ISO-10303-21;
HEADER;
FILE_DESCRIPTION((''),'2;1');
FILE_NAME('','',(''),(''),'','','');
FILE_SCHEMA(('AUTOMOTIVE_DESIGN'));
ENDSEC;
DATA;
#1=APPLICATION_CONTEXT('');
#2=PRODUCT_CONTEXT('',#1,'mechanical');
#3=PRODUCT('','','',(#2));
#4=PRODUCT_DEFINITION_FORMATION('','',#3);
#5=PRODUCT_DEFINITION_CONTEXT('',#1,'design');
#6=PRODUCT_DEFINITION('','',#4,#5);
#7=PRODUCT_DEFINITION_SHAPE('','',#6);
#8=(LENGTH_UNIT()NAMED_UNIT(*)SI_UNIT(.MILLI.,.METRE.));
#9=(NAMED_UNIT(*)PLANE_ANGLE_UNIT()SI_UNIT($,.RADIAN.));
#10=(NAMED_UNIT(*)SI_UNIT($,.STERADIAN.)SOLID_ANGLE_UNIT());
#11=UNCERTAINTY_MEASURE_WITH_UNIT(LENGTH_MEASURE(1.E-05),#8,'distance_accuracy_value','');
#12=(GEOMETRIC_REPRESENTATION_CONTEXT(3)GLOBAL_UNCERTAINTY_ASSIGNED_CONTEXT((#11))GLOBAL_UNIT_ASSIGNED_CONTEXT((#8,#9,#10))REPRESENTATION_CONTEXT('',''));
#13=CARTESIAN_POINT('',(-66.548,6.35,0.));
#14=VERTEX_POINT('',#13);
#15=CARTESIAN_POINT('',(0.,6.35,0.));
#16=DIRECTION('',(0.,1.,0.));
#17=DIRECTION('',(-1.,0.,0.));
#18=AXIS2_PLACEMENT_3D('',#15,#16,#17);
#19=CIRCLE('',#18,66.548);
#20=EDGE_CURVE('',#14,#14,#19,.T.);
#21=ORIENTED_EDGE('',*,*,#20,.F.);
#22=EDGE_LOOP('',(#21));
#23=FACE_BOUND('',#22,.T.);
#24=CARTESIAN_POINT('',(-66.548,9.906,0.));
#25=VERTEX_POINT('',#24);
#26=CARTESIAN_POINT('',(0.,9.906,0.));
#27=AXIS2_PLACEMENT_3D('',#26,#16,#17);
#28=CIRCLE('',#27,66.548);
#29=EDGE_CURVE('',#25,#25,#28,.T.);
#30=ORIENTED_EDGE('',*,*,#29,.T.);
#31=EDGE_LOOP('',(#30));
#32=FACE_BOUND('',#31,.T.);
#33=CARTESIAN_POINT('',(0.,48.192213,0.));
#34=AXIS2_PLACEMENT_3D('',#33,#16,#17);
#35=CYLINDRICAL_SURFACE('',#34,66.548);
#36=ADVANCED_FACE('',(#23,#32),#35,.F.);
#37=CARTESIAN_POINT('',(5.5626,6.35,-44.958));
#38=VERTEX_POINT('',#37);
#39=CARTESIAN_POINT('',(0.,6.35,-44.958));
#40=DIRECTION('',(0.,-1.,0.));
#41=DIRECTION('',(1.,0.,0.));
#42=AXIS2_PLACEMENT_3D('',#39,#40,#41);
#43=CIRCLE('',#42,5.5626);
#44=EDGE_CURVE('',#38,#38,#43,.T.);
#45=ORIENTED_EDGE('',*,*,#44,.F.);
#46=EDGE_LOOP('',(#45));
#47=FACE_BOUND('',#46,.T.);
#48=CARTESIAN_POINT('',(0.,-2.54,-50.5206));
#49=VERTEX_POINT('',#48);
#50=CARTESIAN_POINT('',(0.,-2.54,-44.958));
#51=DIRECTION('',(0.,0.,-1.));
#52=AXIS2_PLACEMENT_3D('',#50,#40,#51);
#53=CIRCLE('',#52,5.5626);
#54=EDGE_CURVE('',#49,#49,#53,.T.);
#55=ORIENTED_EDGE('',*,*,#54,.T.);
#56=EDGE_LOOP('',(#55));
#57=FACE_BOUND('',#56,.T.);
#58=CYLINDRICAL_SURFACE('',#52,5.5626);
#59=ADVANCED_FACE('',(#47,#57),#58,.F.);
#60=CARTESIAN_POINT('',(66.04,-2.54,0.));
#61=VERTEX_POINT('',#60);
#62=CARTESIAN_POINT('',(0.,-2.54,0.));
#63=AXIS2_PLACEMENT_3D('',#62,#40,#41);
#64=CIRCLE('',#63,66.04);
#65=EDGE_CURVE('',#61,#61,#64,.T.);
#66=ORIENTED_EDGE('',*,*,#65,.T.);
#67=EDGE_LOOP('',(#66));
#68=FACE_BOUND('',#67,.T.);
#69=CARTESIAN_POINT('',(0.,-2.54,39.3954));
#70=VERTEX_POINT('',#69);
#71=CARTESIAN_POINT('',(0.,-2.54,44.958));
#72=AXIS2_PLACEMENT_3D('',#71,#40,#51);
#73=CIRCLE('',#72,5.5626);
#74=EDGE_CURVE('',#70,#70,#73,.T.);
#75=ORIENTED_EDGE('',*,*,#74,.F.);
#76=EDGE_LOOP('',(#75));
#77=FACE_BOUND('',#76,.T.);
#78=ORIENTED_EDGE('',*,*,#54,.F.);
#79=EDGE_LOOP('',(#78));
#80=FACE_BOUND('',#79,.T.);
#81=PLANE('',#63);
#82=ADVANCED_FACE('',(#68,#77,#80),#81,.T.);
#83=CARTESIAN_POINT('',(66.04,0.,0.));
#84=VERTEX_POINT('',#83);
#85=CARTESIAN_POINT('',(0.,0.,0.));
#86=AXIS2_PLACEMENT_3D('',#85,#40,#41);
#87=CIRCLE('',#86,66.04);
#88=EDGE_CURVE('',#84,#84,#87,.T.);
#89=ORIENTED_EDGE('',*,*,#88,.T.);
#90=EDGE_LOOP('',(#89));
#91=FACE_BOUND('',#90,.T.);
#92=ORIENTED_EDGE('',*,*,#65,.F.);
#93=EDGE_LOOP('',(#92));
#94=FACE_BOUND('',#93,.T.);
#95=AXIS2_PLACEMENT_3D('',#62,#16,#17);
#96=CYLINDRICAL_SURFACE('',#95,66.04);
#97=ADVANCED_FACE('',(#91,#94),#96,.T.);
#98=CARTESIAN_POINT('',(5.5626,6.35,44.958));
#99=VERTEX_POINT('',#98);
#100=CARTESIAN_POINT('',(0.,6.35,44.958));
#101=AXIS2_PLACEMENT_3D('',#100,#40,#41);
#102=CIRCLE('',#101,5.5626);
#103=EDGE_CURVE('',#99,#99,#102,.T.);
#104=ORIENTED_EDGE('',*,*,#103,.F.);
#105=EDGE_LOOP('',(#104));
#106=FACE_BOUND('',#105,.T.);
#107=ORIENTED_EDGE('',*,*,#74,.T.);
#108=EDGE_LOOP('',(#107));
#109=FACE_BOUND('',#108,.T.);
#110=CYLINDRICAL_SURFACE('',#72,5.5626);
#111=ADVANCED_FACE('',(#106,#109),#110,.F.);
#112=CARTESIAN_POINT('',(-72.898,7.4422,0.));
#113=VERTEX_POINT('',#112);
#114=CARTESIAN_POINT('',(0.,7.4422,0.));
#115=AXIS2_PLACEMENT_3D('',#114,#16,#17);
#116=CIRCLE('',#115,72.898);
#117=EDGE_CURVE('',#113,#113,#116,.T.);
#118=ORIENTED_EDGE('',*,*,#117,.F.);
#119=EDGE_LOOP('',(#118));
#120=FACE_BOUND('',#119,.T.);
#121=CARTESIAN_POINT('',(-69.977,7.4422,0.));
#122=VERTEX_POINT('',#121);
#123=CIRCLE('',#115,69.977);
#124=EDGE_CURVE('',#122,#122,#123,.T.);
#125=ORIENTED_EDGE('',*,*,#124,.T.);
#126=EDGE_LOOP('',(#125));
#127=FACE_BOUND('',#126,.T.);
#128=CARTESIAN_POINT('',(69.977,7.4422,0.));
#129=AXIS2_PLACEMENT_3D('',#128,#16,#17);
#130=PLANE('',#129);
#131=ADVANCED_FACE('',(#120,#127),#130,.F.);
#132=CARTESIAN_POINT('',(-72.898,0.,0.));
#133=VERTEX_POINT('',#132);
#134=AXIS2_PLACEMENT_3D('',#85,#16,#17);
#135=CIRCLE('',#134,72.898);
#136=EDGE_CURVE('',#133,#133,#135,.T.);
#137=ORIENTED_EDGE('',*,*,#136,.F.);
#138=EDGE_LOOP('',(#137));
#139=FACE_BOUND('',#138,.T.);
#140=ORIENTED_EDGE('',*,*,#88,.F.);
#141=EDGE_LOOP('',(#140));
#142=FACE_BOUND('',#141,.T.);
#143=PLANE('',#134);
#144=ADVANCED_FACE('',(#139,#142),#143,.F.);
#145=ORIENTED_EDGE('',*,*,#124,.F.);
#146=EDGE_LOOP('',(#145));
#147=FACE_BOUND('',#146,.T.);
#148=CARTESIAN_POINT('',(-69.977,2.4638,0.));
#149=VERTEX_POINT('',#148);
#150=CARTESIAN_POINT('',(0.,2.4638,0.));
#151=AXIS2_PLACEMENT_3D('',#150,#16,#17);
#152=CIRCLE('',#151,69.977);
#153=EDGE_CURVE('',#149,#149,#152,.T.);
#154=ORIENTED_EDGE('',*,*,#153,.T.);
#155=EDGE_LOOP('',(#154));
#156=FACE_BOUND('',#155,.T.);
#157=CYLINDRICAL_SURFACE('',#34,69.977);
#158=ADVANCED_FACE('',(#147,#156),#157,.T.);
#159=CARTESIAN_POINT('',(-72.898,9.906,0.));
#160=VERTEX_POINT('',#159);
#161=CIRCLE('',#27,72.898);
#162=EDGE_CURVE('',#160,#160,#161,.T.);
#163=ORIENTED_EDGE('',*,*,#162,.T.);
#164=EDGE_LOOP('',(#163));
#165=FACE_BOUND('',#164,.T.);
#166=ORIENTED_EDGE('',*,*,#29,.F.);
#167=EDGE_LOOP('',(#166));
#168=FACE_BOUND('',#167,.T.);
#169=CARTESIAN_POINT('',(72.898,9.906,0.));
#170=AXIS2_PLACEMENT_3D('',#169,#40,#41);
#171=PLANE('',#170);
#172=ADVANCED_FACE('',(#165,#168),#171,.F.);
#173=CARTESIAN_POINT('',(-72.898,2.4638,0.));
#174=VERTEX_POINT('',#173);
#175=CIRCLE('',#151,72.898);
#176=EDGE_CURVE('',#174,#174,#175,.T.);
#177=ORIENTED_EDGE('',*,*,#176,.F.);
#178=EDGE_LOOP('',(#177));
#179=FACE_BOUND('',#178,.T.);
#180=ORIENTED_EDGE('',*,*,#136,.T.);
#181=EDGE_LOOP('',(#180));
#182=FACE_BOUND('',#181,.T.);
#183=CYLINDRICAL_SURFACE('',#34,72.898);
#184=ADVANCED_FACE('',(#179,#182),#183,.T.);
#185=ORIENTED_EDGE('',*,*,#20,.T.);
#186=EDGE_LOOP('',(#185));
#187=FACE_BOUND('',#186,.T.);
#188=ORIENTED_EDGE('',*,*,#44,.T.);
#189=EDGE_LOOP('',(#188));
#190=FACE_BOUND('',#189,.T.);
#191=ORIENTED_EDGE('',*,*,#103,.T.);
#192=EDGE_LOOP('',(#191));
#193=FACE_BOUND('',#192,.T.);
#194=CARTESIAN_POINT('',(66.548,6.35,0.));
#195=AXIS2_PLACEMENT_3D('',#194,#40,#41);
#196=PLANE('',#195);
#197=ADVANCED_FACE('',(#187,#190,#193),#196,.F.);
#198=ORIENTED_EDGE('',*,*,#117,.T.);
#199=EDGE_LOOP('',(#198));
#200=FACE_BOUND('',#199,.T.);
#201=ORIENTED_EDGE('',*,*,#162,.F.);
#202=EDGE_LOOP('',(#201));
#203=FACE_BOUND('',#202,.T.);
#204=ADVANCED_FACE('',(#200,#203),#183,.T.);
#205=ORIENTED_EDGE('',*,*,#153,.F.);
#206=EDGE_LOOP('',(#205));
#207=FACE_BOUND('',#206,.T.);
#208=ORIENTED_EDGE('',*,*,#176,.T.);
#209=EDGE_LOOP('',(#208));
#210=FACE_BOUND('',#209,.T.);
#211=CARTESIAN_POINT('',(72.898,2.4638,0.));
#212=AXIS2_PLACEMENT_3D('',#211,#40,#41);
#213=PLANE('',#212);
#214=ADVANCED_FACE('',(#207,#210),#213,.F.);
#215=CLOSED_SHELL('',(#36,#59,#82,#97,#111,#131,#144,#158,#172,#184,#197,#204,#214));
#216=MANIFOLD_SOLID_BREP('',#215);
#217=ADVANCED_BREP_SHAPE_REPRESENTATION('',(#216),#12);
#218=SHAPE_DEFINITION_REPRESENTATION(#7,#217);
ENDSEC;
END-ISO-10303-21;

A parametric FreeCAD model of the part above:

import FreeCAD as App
import Part
import Sketcher
Q = App.Units.Quantity

doc = App.newDocument("Part")
body = doc.addObject("PartDesign::Body", "Body")

sketch1 = doc.addObject("Sketcher::SketchObject", "Sketch")
body.addObject(sketch1)
sketch1.AttachmentSupport = (doc.XY_Plane, [""])
sketch1.MapMode = "FlatFace"
sketch1.addGeometry([
    Part.LineSegment(App.Vector(0, 0, 0), App.Vector(72.9, 0, 0)),
    Part.LineSegment(App.Vector(72.9, 0, 0), App.Vector(72.9, 2.5, 0)),
    Part.LineSegment(App.Vector(72.9, 2.5, 0), App.Vector(70, 2.5, 0)),
    Part.LineSegment(App.Vector(70, 2.5, 0), App.Vector(70, 7.4, 0)),
    Part.LineSegment(App.Vector(70, 7.4, 0), App.Vector(72.9, 7.4, 0)),
    Part.LineSegment(App.Vector(72.9, 7.4, 0), App.Vector(72.9, 9.9, 0)),
    Part.LineSegment(App.Vector(72.9, 9.9, 0), App.Vector(66.5, 9.9, 0)),
    Part.LineSegment(App.Vector(66.5, 9.9, 0), App.Vector(66.5, 6.3, 0)),
    Part.LineSegment(App.Vector(66.5, 6.3, 0), App.Vector(0, 6.3, 0)),
    Part.LineSegment(App.Vector(0, 6.3, 0), App.Vector(0, 0, 0)),
], False)
sketch1.addConstraint([
    Sketcher.Constraint("Coincident", 0, 2, 1, 1),
    Sketcher.Constraint("Coincident", 1, 2, 2, 1),
    Sketcher.Constraint("Coincident", 2, 2, 3, 1),
    Sketcher.Constraint("Coincident", 3, 2, 4, 1),
    Sketcher.Constraint("Coincident", 4, 2, 5, 1),
    Sketcher.Constraint("Coincident", 5, 2, 6, 1),
    Sketcher.Constraint("Coincident", 6, 2, 7, 1),
    Sketcher.Constraint("Coincident", 7, 2, 8, 1),
    Sketcher.Constraint("Coincident", 8, 2, 9, 1),
    Sketcher.Constraint("Coincident", 9, 2, 0, 1),
    Sketcher.Constraint("Horizontal", 0),
    Sketcher.Constraint("Vertical", 1),
    Sketcher.Constraint("Horizontal", 2),
    Sketcher.Constraint("Vertical", 3),
    Sketcher.Constraint("Horizontal", 4),
    Sketcher.Constraint("Vertical", 5),
    Sketcher.Constraint("Horizontal", 6),
    Sketcher.Constraint("Vertical", 7),
    Sketcher.Constraint("Horizontal", 8),
    Sketcher.Constraint("Vertical", 9),
    Sketcher.Constraint("Coincident", 9, 2, -1, 1),
    Sketcher.Constraint("Vertical", 1, 2, 4, 2),
    Sketcher.Constraint("Equal", 1, 5),
    Sketcher.Constraint("Equal", 6, 9),
    Sketcher.Constraint("DistanceX", 0, 1, 0, 2, Q("2.87 in")),
    Sketcher.Constraint("DistanceX", 6, 2, 6, 1, Q("0.25 in")),
    Sketcher.Constraint("DistanceY", 7, 2, 7, 1, Q("0.14 in")),
    Sketcher.Constraint("DistanceX", 2, 2, 2, 1, Q("0.115 in")),
    Sketcher.Constraint("DistanceY", 1, 1, 1, 2, Q("0.097 in")),
])
revolution = doc.addObject("PartDesign::Revolution", "Revolution")
body.addObject(revolution)
revolution.Profile = sketch1
revolution.ReferenceAxis = (sketch1, ["V_Axis"])
revolution.Angle = 360

sketch2 = doc.addObject("Sketcher::SketchObject", "Sketch001")
body.addObject(sketch2)
sketch2.AttachmentSupport = (doc.XZ_Plane, [""])
sketch2.MapMode = "FlatFace"
sketch2.addGeometry(Part.Circle(App.Vector(0, 0, 0), App.Vector(0, 0, 1), 66), False)
sketch2.addConstraint([
    Sketcher.Constraint("Coincident", 0, 3, -1, 1),
    Sketcher.Constraint("Diameter", 0, Q("5.2 in")),
])
pad1 = doc.addObject("PartDesign::Pad", "Pad")
body.addObject(pad1)
pad1.Profile = sketch2
pad1.Length = Q("0.1 in")

sketch3 = doc.addObject("Sketcher::SketchObject", "Sketch002")
body.addObject(sketch3)
sketch3.AttachmentSupport = (doc.XZ_Plane, [""])
sketch3.MapMode = "FlatFace"
sketch3.AttachmentOffset = App.Placement(App.Vector(0, 0, 0.1 * 25.4), App.Rotation())
sketch3.addGeometry(Part.Circle(App.Vector(0, -45, 0), App.Vector(0, 0, 1), 6), False)
sketch3.addConstraint([
    Sketcher.Constraint("PointOnObject", 0, 3, -2),
    Sketcher.Constraint("Diameter", 0, Q("0.438 in")),
    Sketcher.Constraint("DistanceY", 0, 3, -1, 1, Q("1.77 in")),
])
doc.recompute()
hole = doc.addObject("PartDesign::Hole", "Hole")
body.addObject(hole)
hole.Profile = sketch3
hole.ThreadType = "None"
hole.Diameter = Q("0.438 in")
hole.DepthType = "ThroughAll"

sketch4 = doc.addObject("Sketcher::SketchObject", "Sketch003")
body.addObject(sketch4)
sketch4.AttachmentSupport = (doc.XZ_Plane, [""])
sketch4.MapMode = "FlatFace"
sketch4.AttachmentOffset = App.Placement(App.Vector(0, 0, 0.1 * 25.4), App.Rotation())
sketch4.addGeometry(Part.Circle(App.Vector(0, 45, 0), App.Vector(0, 0, 1), 6), False)
sketch4.addConstraint([
    Sketcher.Constraint("PointOnObject", 0, 3, -2),
    Sketcher.Constraint("Diameter", 0, Q("0.438 in")),
    Sketcher.Constraint("DistanceY", -1, 1, 0, 3, Q("1.77 in")),
])
doc.recompute()
hole2 = doc.addObject("PartDesign::Hole", "Hole001")
body.addObject(hole2)
hole2.Profile = sketch4
hole2.ThreadType = "None"
hole2.Diameter = Q("0.438 in")
hole2.DepthType = "ThroughAll"

doc.recompute()
